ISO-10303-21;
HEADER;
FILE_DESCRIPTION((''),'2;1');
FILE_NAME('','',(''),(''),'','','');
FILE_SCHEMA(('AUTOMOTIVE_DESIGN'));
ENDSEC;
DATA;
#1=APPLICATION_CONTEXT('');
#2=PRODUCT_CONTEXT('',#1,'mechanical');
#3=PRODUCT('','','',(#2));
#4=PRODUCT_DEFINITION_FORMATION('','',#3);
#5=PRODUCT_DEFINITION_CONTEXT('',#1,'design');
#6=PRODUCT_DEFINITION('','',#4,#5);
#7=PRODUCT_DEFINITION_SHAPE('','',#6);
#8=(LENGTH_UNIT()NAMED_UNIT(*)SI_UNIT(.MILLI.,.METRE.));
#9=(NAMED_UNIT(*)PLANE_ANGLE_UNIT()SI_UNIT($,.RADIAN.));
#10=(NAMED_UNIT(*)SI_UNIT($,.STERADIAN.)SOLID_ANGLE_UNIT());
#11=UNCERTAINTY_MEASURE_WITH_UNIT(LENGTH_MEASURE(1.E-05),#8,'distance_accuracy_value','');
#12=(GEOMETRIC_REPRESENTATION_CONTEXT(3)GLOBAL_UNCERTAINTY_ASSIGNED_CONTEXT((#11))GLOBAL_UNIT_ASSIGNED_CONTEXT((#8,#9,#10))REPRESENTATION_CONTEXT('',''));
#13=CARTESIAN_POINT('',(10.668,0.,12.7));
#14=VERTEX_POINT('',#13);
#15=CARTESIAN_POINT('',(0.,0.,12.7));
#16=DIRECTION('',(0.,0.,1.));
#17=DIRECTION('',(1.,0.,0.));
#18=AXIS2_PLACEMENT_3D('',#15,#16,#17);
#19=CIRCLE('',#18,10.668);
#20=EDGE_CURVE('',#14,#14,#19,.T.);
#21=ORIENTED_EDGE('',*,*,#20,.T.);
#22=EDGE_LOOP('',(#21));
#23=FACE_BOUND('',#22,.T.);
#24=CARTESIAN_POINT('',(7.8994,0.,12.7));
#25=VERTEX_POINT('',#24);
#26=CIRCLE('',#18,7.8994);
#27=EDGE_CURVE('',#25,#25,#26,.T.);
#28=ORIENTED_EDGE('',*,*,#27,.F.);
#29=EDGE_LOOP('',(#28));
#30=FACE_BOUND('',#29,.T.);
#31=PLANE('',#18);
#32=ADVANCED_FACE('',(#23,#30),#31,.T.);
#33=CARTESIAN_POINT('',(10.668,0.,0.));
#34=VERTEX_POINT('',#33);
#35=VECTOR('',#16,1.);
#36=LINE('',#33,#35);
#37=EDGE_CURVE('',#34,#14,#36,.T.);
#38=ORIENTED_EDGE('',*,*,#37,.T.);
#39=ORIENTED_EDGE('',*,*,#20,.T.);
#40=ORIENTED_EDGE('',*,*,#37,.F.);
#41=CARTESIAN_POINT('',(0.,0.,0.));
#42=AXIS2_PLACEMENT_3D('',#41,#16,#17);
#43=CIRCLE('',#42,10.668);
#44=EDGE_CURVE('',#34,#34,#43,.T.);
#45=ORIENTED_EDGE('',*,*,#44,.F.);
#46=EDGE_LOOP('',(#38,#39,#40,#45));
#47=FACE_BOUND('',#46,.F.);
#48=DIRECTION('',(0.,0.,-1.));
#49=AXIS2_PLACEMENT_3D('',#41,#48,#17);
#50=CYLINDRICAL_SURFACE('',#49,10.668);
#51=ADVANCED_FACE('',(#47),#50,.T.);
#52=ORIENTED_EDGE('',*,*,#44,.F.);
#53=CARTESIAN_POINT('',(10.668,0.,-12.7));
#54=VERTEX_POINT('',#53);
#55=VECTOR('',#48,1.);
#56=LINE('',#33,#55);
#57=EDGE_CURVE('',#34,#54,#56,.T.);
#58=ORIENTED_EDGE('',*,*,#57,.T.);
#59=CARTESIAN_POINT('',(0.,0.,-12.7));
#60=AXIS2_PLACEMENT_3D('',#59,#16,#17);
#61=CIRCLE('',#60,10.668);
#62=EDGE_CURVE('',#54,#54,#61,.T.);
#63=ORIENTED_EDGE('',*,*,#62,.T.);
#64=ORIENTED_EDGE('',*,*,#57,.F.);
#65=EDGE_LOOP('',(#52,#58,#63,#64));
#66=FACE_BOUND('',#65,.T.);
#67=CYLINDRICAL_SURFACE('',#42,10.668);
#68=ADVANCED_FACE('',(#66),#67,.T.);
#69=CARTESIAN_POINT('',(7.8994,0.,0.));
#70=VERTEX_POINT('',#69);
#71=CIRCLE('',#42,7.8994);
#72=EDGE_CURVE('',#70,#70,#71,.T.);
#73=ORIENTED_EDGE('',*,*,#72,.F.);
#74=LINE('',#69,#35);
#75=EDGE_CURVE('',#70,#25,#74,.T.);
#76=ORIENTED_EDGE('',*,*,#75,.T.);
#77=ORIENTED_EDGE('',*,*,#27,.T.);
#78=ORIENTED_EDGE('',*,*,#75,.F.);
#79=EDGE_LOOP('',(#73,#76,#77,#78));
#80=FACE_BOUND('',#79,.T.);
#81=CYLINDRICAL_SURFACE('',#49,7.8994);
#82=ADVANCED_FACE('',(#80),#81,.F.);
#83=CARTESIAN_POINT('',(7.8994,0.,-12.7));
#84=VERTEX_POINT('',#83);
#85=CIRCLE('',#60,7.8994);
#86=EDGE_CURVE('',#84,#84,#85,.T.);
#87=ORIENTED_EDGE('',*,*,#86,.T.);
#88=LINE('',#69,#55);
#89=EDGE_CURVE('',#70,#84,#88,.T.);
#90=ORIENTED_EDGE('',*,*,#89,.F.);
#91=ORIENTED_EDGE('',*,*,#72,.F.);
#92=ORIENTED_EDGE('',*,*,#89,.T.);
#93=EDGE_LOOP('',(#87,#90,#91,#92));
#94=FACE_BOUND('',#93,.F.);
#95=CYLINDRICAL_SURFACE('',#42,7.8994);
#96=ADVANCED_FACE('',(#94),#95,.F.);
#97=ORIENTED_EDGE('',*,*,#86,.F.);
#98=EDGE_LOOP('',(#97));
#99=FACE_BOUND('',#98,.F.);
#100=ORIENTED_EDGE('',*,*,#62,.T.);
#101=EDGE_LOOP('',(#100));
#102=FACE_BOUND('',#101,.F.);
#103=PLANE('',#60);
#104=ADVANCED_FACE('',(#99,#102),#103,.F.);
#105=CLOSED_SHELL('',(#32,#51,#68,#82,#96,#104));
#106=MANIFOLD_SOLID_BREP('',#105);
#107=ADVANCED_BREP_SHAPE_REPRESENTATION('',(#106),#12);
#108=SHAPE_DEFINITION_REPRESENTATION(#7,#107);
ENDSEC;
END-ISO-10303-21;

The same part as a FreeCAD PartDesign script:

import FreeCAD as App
import Part
import Sketcher

V = App.Vector
Q = App.Units.Quantity

doc = App.newDocument("Part")
body = doc.addObject("PartDesign::Body", "Body")

sketch1 = body.newObject("Sketcher::SketchObject", "Sketch")
sketch1.AttachmentSupport = (doc.getObject("XY_Plane"), [""])
sketch1.MapMode = "FlatFace"
sketch1.addGeometry([
    Part.Circle(V(0, 0, 0), V(0, 0, 1), 11),
    Part.Circle(V(0, 0, 0), V(0, 0, 1), 8),
], False)
sketch1.addConstraint([
    Sketcher.Constraint("Coincident", 0, 3, -1, 1),
    Sketcher.Constraint("Coincident", 1, 3, -1, 1),
    Sketcher.Constraint("Diameter", 0, Q("0.84 in")),
    Sketcher.Constraint("Diameter", 1, Q("0.622 in")),
])
pad1 = body.newObject("PartDesign::Pad", "Pad")
pad1.Profile = sketch1
pad1.Length = Q("1 in")
pad1.Midplane = True

doc.recompute()
